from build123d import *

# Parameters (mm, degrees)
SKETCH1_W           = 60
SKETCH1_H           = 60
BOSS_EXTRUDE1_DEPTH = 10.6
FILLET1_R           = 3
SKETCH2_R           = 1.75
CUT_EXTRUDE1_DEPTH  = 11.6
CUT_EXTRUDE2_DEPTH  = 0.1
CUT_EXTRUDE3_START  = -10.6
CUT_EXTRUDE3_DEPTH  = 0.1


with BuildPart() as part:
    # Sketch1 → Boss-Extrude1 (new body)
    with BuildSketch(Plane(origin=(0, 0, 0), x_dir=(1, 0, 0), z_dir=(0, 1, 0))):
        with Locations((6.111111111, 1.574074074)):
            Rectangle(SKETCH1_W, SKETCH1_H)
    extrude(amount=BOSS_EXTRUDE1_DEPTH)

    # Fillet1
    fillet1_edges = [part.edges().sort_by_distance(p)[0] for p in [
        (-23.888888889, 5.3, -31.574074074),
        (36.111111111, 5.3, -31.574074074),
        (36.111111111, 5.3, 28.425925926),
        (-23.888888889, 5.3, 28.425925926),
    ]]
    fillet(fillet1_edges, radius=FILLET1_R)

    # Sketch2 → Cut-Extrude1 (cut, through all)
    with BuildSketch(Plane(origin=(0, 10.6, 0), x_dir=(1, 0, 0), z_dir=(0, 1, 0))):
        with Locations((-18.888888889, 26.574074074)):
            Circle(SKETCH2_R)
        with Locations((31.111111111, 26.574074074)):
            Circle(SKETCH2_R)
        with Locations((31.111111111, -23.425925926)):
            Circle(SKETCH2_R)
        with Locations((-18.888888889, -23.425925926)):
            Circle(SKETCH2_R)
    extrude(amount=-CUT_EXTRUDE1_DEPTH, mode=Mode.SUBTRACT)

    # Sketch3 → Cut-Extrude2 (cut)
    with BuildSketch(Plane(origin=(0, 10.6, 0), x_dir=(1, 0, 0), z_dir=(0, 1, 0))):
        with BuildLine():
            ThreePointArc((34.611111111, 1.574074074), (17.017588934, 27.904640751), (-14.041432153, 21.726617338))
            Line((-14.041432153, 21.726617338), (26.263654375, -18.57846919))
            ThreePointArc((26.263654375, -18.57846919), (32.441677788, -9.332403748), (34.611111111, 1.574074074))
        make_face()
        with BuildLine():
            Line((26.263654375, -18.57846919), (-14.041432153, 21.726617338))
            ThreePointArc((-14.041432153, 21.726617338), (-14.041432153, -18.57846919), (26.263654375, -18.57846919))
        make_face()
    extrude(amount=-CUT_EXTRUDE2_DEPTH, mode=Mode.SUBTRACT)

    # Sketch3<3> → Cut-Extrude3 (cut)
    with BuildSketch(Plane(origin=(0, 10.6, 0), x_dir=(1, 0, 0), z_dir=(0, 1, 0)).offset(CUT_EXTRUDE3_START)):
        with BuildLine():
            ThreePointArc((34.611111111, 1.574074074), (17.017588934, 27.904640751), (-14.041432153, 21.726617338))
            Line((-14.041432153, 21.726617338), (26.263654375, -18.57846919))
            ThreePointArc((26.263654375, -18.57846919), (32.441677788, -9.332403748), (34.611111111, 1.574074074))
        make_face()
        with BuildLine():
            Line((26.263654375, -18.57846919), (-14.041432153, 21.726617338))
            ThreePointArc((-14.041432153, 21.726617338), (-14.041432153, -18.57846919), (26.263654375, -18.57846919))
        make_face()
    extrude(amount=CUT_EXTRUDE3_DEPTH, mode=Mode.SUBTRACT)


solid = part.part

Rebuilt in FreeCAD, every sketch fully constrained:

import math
import FreeCAD as App
import Part
import Sketcher


def edges_at(feature, points):
    """Names of the edges that pass closest to the given points."""
    edges = feature.Shape.Edges
    near = lambda p: min(range(len(edges)), key=lambda i: edges[i].distToShape(Part.Vertex(*p))[0])
    return sorted({f"Edge{near(p) + 1}" for p in points})

doc = App.newDocument("Part")
body = doc.addObject("PartDesign::Body", "Body")

# Sketch on XZ plane
sketch1 = body.newObject("Sketcher::SketchObject", "Sketch")
sketch1.AttachmentSupport = (doc.getObject("XZ_Plane"), [""])
sketch1.MapMode = "FlatFace"
sketch1.addGeometry([
    Part.LineSegment(App.Vector(-24, -32, 0), App.Vector(-24, 28, 0)),
    Part.LineSegment(App.Vector(-24, 28, 0), App.Vector(36, 28, 0)),
    Part.LineSegment(App.Vector(36, 28, 0), App.Vector(36, -32, 0)),
    Part.LineSegment(App.Vector(36, -32, 0), App.Vector(-24, -32, 0)),
], False)
sketch1.addConstraint([
    Sketcher.Constraint("Coincident", 0, 2, 1, 1),
    Sketcher.Constraint("Coincident", 1, 2, 2, 1),
    Sketcher.Constraint("Coincident", 2, 2, 3, 1),
    Sketcher.Constraint("Coincident", 3, 2, 0, 1),
    Sketcher.Constraint("Vertical", 0),
    Sketcher.Constraint("Horizontal", 1),
    Sketcher.Constraint("Vertical", 2),
    Sketcher.Constraint("Horizontal", 3),
    Sketcher.Constraint("Equal", 3, 0),
    Sketcher.Constraint("DistanceX", 1, 1, 1, 2, 60.0),
    Sketcher.Constraint("DistanceX", 0, 2, -1, 1, 23.888889),
    Sketcher.Constraint("DistanceY", -1, 1, 0, 2, 28.425926),
])
pad1 = body.newObject("PartDesign::Pad", "Pad")
pad1.Profile = sketch1
pad1.Length = 10.6
pad1.Reversed = True
doc.recompute()

fillet = body.newObject("PartDesign::Fillet", "Fillet")
fillet.Base = (pad1, edges_at(pad1, [
    (-23.889, 5.3, -31.574),
    (36.111, 5.3, -31.574),
    (36.111, 5.3, 28.426),
    (-23.889, 5.3, 28.426),
]))
fillet.Radius = 3

# Sketch on XZ plane
sketch2 = body.newObject("Sketcher::SketchObject", "Sketch001")
sketch2.AttachmentSupport = (doc.getObject("XZ_Plane"), [""])
sketch2.MapMode = "FlatFace"
sketch2.AttachmentOffset = App.Placement(App.Vector(0, 0, -10.6), App.Rotation())
sketch2.addGeometry([
    Part.Circle(App.Vector(-18.9, -26.6, 0), App.Vector(0, 0, 1), 1.8),
    Part.Circle(App.Vector(31.1, -26.6, 0), App.Vector(0, 0, 1), 1.8),
    Part.Circle(App.Vector(31.1, 23.4, 0), App.Vector(0, 0, 1), 1.8),
    Part.Circle(App.Vector(-18.9, 23.4, 0), App.Vector(0, 0, 1), 1.8),
], False)
sketch2.addConstraint([
    Sketcher.Constraint("Equal", 0, 1),
    Sketcher.Constraint("Equal", 1, 2),
    Sketcher.Constraint("Equal", 2, 3),
    Sketcher.Constraint("Horizontal", 0, 3, 1, 3),
    Sketcher.Constraint("Horizontal", 2, 3, 3, 3),
    Sketcher.Constraint("Vertical", 1, 3, 2, 3),
    Sketcher.Constraint("Vertical", 0, 3, 3, 3),
    Sketcher.Constraint("Diameter", 0, 3.5),
    Sketcher.Constraint("DistanceX", 0, 3, 1, 3, 50.0),
    Sketcher.Constraint("DistanceY", 1, 3, 2, 3, 50.0),
    Sketcher.Constraint("DistanceX", 0, 3, -1, 1, 18.888889),
    Sketcher.Constraint("DistanceY", 0, 3, -1, 1, 26.574074),
])
pocket1 = body.newObject("PartDesign::Pocket", "Pocket")
pocket1.Profile = sketch2
pocket1.Type = "ThroughAll"
pocket1.Reversed = True

# Sketch on XZ plane
sketch3 = body.newObject("Sketcher::SketchObject", "Sketch002")
sketch3.AttachmentSupport = (doc.getObject("XZ_Plane"), [""])
sketch3.MapMode = "FlatFace"
sketch3.AttachmentOffset = App.Placement(App.Vector(0, 0, -10.6), App.Rotation())
sketch3.addGeometry([
    Part.ArcOfCircle(Part.Circle(App.Vector(6, -2, 0), App.Vector(0, 0, 1), 28), math.radians(-135), math.radians(0)),
    Part.ArcOfCircle(Part.Circle(App.Vector(6, -2, 0), App.Vector(0, 0, 1), 28), math.radians(45), math.radians(225)),
    Part.ArcOfCircle(Part.Circle(App.Vector(6, -2, 0), App.Vector(0, 0, 1), 28), math.radians(0), math.radians(45)),
], False)
sketch3.addConstraint([
    Sketcher.Constraint("Tangent", 0, 1, 1, 2),
    Sketcher.Constraint("Tangent", 1, 1, 2, 2),
    Sketcher.Constraint("Tangent", 2, 1, 0, 2),
    Sketcher.Constraint("Horizontal", 1, 3, 2, 1),
    Sketcher.Constraint("Radius", 0, 28.5),
    Sketcher.Constraint("DistanceX", -1, 1, 0, 3, 6.111111),
    Sketcher.Constraint("DistanceY", -1, 1, 1, 1, 18.578469),
    Sketcher.Constraint("DistanceY", 0, 3, -1, 1, 1.574074),
    Sketcher.Constraint("DistanceX", 0, 1, -1, 1, 14.041432),
])
pocket2 = body.newObject("PartDesign::Pocket", "Pocket001")
pocket2.Profile = sketch3
pocket2.Length = 0.1
pocket2.Reversed = True

# Sketch on XZ plane
sketch4 = body.newObject("Sketcher::SketchObject", "Sketch003")
sketch4.AttachmentSupport = (doc.getObject("XZ_Plane"), [""])
sketch4.MapMode = "FlatFace"
sketch4.addGeometry([
    Part.ArcOfCircle(Part.Circle(App.Vector(6, -2, 0), App.Vector(0, 0, 1), 28), math.radians(-135), math.radians(0)),
    Part.ArcOfCircle(Part.Circle(App.Vector(6, -2, 0), App.Vector(0, 0, 1), 28), math.radians(45), math.radians(225)),
    Part.ArcOfCircle(Part.Circle(App.Vector(6, -2, 0), App.Vector(0, 0, 1), 28), math.radians(0), math.radians(45)),
], False)
sketch4.addConstraint([
    Sketcher.Constraint("Tangent", 0, 1, 1, 2),
    Sketcher.Constraint("Tangent", 1, 1, 2, 2),
    Sketcher.Constraint("Tangent", 2, 1, 0, 2),
    Sketcher.Constraint("Horizontal", 1, 3, 2, 1),
    Sketcher.Constraint("Radius", 0, 28.5),
    Sketcher.Constraint("DistanceX", -1, 1, 0, 3, 6.111111),
    Sketcher.Constraint("DistanceY", -1, 1, 1, 1, 18.578469),
    Sketcher.Constraint("DistanceY", 0, 3, -1, 1, 1.574074),
    Sketcher.Constraint("DistanceX", 0, 1, -1, 1, 14.041432),
])
pocket3 = body.newObject("PartDesign::Pocket", "Pocket002")
pocket3.Profile = sketch4
pocket3.Length = 0.1

doc.recompute()
